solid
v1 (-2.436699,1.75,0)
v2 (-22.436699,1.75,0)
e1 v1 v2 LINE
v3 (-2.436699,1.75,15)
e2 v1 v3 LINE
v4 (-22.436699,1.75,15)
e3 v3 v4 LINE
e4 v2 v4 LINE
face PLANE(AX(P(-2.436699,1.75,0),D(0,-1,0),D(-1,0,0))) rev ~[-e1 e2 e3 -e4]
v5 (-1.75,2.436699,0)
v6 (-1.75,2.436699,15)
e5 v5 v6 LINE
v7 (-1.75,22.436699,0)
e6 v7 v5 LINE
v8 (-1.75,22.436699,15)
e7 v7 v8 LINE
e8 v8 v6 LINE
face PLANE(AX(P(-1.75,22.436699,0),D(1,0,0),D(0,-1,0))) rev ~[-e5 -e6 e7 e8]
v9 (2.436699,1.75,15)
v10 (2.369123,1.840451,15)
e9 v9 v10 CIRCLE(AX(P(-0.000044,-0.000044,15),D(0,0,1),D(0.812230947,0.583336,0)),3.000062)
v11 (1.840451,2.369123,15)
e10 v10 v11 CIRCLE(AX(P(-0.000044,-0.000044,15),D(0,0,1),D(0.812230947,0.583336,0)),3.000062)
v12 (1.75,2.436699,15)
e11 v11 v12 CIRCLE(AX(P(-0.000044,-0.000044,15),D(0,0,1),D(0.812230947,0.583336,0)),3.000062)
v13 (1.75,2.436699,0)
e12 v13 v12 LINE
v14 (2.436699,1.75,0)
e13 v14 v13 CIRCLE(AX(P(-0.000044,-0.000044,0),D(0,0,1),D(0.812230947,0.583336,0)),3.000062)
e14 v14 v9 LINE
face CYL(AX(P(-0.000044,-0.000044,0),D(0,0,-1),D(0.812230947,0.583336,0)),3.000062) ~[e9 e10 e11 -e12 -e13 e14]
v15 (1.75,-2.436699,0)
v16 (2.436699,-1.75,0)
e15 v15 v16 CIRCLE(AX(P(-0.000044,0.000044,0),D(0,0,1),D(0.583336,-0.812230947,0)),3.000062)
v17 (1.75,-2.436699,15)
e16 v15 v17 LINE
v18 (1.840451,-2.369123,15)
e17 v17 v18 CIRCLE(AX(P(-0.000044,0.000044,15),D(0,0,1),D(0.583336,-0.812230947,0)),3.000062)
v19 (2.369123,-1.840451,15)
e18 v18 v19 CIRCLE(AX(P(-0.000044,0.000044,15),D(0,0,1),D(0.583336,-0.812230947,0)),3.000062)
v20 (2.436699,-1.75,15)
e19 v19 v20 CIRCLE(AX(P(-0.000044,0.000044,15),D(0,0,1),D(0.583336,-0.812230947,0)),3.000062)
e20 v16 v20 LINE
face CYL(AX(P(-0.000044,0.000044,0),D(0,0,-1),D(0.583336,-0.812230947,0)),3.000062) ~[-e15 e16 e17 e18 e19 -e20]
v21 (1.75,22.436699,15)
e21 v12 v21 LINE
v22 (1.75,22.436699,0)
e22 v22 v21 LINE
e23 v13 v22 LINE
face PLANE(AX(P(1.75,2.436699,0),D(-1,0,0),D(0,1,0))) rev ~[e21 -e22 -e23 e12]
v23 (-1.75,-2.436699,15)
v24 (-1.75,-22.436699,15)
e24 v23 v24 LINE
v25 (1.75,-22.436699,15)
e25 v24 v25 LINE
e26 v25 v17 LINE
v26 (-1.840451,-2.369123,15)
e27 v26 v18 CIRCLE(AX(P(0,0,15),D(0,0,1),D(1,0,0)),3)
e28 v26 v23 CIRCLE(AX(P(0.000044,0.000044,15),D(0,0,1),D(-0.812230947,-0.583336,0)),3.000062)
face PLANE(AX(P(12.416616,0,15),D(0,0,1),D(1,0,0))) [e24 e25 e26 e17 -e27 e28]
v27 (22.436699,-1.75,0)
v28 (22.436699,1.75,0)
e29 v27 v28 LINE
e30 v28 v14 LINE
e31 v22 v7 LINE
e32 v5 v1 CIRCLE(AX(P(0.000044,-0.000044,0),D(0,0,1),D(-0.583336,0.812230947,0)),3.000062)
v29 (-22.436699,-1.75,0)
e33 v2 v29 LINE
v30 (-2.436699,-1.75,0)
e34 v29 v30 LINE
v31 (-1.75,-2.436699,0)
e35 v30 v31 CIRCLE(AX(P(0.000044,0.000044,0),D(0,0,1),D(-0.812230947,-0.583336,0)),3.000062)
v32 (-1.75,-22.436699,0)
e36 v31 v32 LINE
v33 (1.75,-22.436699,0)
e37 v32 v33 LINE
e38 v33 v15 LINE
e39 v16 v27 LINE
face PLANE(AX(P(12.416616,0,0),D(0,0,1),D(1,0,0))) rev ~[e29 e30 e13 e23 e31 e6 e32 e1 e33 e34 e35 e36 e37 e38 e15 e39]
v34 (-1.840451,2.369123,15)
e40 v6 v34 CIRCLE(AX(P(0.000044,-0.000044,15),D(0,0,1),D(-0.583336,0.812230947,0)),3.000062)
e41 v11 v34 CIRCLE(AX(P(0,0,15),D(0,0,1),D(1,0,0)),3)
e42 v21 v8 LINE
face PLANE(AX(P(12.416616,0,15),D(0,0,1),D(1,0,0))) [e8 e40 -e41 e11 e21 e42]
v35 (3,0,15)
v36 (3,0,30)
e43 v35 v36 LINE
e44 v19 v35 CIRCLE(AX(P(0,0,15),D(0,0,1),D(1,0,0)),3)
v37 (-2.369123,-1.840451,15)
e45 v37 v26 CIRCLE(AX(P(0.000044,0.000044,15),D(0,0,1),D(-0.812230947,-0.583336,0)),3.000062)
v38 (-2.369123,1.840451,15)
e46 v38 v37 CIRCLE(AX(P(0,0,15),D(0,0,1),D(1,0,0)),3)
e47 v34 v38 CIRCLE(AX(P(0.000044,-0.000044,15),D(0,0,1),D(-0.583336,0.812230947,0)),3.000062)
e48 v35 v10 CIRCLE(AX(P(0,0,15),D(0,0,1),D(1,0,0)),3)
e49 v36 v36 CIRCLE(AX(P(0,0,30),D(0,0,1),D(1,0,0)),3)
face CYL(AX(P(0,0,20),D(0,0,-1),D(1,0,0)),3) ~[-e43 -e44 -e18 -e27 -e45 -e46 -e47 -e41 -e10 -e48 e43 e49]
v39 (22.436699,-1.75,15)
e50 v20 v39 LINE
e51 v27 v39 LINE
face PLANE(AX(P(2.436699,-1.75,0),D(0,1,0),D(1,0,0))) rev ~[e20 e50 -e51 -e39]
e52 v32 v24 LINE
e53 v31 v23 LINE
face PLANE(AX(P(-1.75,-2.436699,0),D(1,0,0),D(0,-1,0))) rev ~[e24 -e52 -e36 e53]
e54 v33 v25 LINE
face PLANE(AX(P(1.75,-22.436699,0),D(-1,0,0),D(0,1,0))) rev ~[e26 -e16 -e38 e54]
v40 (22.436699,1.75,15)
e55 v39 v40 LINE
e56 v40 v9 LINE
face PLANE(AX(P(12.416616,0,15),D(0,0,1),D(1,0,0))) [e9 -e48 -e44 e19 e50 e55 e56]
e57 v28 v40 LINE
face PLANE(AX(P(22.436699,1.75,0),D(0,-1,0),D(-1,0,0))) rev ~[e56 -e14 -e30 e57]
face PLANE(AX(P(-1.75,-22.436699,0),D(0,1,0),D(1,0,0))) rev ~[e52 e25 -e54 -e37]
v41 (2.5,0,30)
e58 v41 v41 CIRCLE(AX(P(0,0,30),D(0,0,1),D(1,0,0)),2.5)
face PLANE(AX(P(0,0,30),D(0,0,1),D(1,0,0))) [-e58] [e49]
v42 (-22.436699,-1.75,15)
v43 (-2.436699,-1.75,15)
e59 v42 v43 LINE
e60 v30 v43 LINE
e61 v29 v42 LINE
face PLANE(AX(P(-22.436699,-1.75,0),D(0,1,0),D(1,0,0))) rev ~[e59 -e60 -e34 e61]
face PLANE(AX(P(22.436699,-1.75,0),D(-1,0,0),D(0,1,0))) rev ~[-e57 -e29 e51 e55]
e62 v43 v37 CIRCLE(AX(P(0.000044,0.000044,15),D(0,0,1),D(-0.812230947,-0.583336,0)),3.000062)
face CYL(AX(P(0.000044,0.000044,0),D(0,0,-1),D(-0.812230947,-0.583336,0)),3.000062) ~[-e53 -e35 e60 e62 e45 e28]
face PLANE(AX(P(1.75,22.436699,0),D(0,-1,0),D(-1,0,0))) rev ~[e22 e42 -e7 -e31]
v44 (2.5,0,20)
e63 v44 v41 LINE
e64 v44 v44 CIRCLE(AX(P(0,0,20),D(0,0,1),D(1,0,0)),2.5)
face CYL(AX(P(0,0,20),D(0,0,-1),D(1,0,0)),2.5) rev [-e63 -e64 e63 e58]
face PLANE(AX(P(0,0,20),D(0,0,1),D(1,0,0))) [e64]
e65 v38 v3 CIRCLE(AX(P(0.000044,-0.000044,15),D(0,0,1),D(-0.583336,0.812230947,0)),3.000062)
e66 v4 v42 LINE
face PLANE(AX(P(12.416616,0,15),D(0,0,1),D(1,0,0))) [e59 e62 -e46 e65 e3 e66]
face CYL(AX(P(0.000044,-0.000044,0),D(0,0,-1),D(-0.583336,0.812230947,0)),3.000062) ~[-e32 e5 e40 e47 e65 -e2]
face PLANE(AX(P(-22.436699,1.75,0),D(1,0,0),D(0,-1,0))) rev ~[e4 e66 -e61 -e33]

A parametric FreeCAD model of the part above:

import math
import FreeCAD as App
import Part
import Sketcher
from FreeCAD import Vector
Q = App.Units.Quantity

doc = App.newDocument("Part")
body = doc.addObject("PartDesign::Body", "Body")

# Sketch on XY plane
sketch1 = doc.addObject("Sketcher::SketchObject", "Sketch")
body.addObject(sketch1)
sketch1.AttachmentSupport = (doc.XY_Plane, [""])
sketch1.MapMode = "FlatFace"
sketch1.addGeometry([
    Part.LineSegment(Vector(2.436699, -1.75, 0), Vector(22.436699, -1.75, 0)),  # 0
    Part.LineSegment(Vector(22.436699, -1.75, 0), Vector(22.436699, 1.75, 0)),  # 1
    Part.LineSegment(Vector(22.436699, 1.75, 0), Vector(2.436699, 1.75, 0)),  # 2
    Part.ArcOfCircle(Part.Circle(Vector(-0.000044, -0.000044, 0), Vector(0, 0, 1), 3.000062), math.radians(35.685523), math.radians(54.314477)),  # 3
    Part.LineSegment(Vector(1.75, 2.436699, 0), Vector(1.75, 22.436699, 0)),  # 4
    Part.LineSegment(Vector(1.75, 22.436699, 0), Vector(-1.75, 22.436699, 0)),  # 5
    Part.LineSegment(Vector(-1.75, 22.436699, 0), Vector(-1.75, 2.436699, 0)),  # 6
    Part.ArcOfCircle(Part.Circle(Vector(0.000044, -0.000044, 0), Vector(0, 0, 1), 3.000062), math.radians(125.685523), math.radians(144.314477)),  # 7
    Part.LineSegment(Vector(-2.436699, 1.75, 0), Vector(-22.436699, 1.75, 0)),  # 8
    Part.LineSegment(Vector(-22.436699, 1.75, 0), Vector(-22.436699, -1.75, 0)),  # 9
    Part.LineSegment(Vector(-22.436699, -1.75, 0), Vector(-2.436699, -1.75, 0)),  # 10
    Part.ArcOfCircle(Part.Circle(Vector(0.000044, 0.000044, 0), Vector(0, 0, 1), 3.000062), math.radians(-144.314477), math.radians(-125.685523)),  # 11
    Part.LineSegment(Vector(-1.75, -2.436699, 0), Vector(-1.75, -22.436699, 0)),  # 12
    Part.LineSegment(Vector(-1.75, -22.436699, 0), Vector(1.75, -22.436699, 0)),  # 13
    Part.LineSegment(Vector(1.75, -22.436699, 0), Vector(1.75, -2.436699, 0)),  # 14
    Part.ArcOfCircle(Part.Circle(Vector(-0.000044, 0.000044, 0), Vector(0, 0, 1), 3.000062), math.radians(-54.314477), math.radians(-35.685523)),  # 15
], False)
sketch1.addConstraint([
    Sketcher.Constraint("Coincident", 0, 2, 1, 1),
    Sketcher.Constraint("Coincident", 1, 2, 2, 1),
    Sketcher.Constraint("Coincident", 2, 2, 3, 1),
    Sketcher.Constraint("Coincident", 3, 2, 4, 1),
    Sketcher.Constraint("Coincident", 4, 2, 5, 1),
    Sketcher.Constraint("Coincident", 5, 2, 6, 1),
    Sketcher.Constraint("Coincident", 6, 2, 7, 1),
    Sketcher.Constraint("Coincident", 7, 2, 8, 1),
    Sketcher.Constraint("Coincident", 8, 2, 9, 1),
    Sketcher.Constraint("Coincident", 9, 2, 10, 1),
    Sketcher.Constraint("Coincident", 10, 2, 11, 1),
    Sketcher.Constraint("Coincident", 11, 2, 12, 1),
    Sketcher.Constraint("Coincident", 12, 2, 13, 1),
    Sketcher.Constraint("Coincident", 13, 2, 14, 1),
    Sketcher.Constraint("Coincident", 14, 2, 15, 1),
    Sketcher.Constraint("Coincident", 15, 2, 0, 1),
    Sketcher.Constraint("Horizontal", 0),
    Sketcher.Constraint("Vertical", 1),
    Sketcher.Constraint("Horizontal", 2),
    Sketcher.Constraint("Vertical", 4),
    Sketcher.Constraint("Horizontal", 5),
    Sketcher.Constraint("Vertical", 6),
    Sketcher.Constraint("Horizontal", 8),
    Sketcher.Constraint("Vertical", 9),
    Sketcher.Constraint("Horizontal", 10),
    Sketcher.Constraint("Vertical", 12),
    Sketcher.Constraint("Horizontal", 13),
    Sketcher.Constraint("Vertical", 14),
    Sketcher.Constraint("Equal", 3, 7),
    Sketcher.Constraint("Equal", 7, 11),
    Sketcher.Constraint("Equal", 11, 15),
    Sketcher.Constraint("Symmetric", 3, 3, 11, 3, -1, 1),
    Sketcher.Constraint("Symmetric", 7, 3, 15, 3, -1, 1),
    Sketcher.Constraint("Symmetric", 0, 2, 8, 2, -1, 1),
    Sketcher.Constraint("Symmetric", 4, 2, 12, 2, -1, 1),
    Sketcher.Constraint("Symmetric", 3, 3, 7, 3, -2),
    Sketcher.Constraint("Horizontal", 3, 2, 6, 2),
    Sketcher.Constraint("Horizontal", 2, 2, 7, 2),
    Sketcher.Constraint("Horizontal", 0, 2, 9, 2),
    Sketcher.Constraint("Horizontal", 11, 2, 14, 2),
    Sketcher.Constraint("Equal", 13, 1),
    Sketcher.Constraint("Equal", 10, 4),
    Sketcher.Constraint("DistanceX", 0, 1, 0, 2, Q("20 mm")),
    Sketcher.Constraint("DistanceX", 5, 2, 5, 1, Q("3.5 mm")),
    Sketcher.Constraint("Radius", 3, Q("3.000062 mm")),
    Sketcher.Constraint("DistanceX", -1, 1, 0, 2, Q("22.436699 mm")),
    Sketcher.Constraint("DistanceY", -1, 1, 3, 2, Q("2.436699 mm")),
])
pad1 = doc.addObject("PartDesign::Pad", "Pad")
body.addObject(pad1)
pad1.Profile = sketch1
pad1.Length = 15

# Sketch on XY plane
sketch2 = doc.addObject("Sketcher::SketchObject", "Sketch001")
body.addObject(sketch2)
sketch2.AttachmentSupport = (doc.XY_Plane, [""])
sketch2.MapMode = "FlatFace"
sketch2.AttachmentOffset = App.Placement(Vector(0, 0, 15), App.Rotation())
sketch2.addGeometry(Part.Circle(Vector(0, 0, 0), Vector(0, 0, 1), 3), False)
sketch2.addConstraint([
    Sketcher.Constraint("Coincident", 0, 3, -1, 1),
    Sketcher.Constraint("Diameter", 0, Q("6 mm")),
])
pad2 = doc.addObject("PartDesign::Pad", "Pad001")
body.addObject(pad2)
pad2.Profile = sketch2
pad2.Length = 5

# Sketch on XY plane
sketch3 = doc.addObject("Sketcher::SketchObject", "Sketch002")
body.addObject(sketch3)
sketch3.AttachmentSupport = (doc.XY_Plane, [""])
sketch3.MapMode = "FlatFace"
sketch3.AttachmentOffset = App.Placement(Vector(0, 0, 20), App.Rotation())
sketch3.addGeometry([
    Part.Circle(Vector(0, 0, 0), Vector(0, 0, 1), 3),
    Part.Circle(Vector(0, 0, 0), Vector(0, 0, 1), 2.5),
], False)
sketch3.addConstraint([
    Sketcher.Constraint("Coincident", 0, 3, -1, 1),
    Sketcher.Constraint("Coincident", 1, 3, -1, 1),
    Sketcher.Constraint("Diameter", 0, Q("6 mm")),
    Sketcher.Constraint("Diameter", 1, Q("5 mm")),
])
pad3 = doc.addObject("PartDesign::Pad", "Pad002")
body.addObject(pad3)
pad3.Profile = sketch3
pad3.Length = 10

doc.recompute()
